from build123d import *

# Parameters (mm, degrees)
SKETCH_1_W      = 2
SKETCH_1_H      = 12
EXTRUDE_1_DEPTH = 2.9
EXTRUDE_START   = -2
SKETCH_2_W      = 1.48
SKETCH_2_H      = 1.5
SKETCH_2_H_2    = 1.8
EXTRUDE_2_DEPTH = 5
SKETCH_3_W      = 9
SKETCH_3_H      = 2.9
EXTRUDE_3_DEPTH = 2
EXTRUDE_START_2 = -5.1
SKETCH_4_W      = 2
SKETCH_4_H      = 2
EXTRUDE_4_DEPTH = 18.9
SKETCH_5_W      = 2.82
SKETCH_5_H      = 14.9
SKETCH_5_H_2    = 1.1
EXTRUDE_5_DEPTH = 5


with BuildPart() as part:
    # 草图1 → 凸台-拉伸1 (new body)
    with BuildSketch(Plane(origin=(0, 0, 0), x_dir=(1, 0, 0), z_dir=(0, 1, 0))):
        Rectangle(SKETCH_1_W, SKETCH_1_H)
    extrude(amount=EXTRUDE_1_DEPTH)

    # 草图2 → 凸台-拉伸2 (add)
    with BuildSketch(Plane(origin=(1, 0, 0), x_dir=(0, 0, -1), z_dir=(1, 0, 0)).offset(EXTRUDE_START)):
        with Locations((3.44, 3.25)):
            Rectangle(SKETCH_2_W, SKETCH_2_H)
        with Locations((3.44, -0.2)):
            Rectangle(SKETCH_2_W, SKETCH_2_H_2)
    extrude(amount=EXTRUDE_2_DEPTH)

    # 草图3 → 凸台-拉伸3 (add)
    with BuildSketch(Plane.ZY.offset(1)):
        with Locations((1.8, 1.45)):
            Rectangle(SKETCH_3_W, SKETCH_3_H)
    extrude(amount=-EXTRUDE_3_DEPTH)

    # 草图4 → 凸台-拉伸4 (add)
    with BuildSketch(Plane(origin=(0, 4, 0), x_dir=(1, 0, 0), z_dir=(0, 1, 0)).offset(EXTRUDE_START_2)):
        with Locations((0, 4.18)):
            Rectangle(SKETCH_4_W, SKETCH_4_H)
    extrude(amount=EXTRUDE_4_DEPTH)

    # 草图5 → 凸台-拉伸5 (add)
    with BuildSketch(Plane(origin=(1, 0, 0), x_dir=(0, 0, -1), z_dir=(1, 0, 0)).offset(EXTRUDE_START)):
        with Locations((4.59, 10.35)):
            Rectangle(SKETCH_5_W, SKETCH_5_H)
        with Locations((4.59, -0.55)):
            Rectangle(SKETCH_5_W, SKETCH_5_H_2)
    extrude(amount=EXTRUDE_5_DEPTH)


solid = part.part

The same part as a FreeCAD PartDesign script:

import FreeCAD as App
import Part
import Sketcher
from FreeCAD import Vector

doc = App.newDocument("Part")
body = doc.addObject("PartDesign::Body", "Body")

# Sketch on XZ plane
sketch1 = body.newObject("Sketcher::SketchObject", "Sketch")
sketch1.AttachmentSupport = (doc.getObject("XZ_Plane"), [""])
sketch1.MapMode = "FlatFace"
sketch1.addGeometry([
    Part.LineSegment(Vector(-1, -6, 0), Vector(-1, 6, 0)),
    Part.LineSegment(Vector(-1, 6, 0), Vector(1, 6, 0)),
    Part.LineSegment(Vector(1, 6, 0), Vector(1, -6, 0)),
    Part.LineSegment(Vector(1, -6, 0), Vector(-1, -6, 0)),
], False)
sketch1.addConstraint([
    Sketcher.Constraint("Coincident", 0, 2, 1, 1),
    Sketcher.Constraint("Coincident", 1, 2, 2, 1),
    Sketcher.Constraint("Coincident", 2, 2, 3, 1),
    Sketcher.Constraint("Coincident", 3, 2, 0, 1),
    Sketcher.Constraint("Vertical", 0),
    Sketcher.Constraint("Horizontal", 1),
    Sketcher.Constraint("Vertical", 2),
    Sketcher.Constraint("Horizontal", 3),
    Sketcher.Constraint("Symmetric", 0, 2, 2, 2, -1, 1),
    Sketcher.Constraint("DistanceX", 1, 1, 1, 2, 2.0),
    Sketcher.Constraint("DistanceY", 0, 1, 0, 2, 12.0),
])
pad1 = body.newObject("PartDesign::Pad", "Pad")
pad1.Profile = sketch1
pad1.Length = 2.9
pad1.Reversed = True

# Sketch on YZ plane
sketch2 = body.newObject("Sketcher::SketchObject", "Sketch001")
sketch2.AttachmentSupport = (doc.getObject("YZ_Plane"), [""])
sketch2.MapMode = "FlatFace"
sketch2.AttachmentOffset = App.Placement(Vector(0, 0, -1), App.Rotation())
sketch2.addGeometry([
    Part.LineSegment(Vector(4, -2.7, 0), Vector(2.5, -2.7, 0)),  # 0
    Part.LineSegment(Vector(2.5, -2.7, 0), Vector(2.5, -4.2, 0)),  # 1
    Part.LineSegment(Vector(2.5, -4.2, 0), Vector(4, -4.2, 0)),  # 2
    Part.LineSegment(Vector(4, -4.2, 0), Vector(4, -2.7, 0)),  # 3
    Part.LineSegment(Vector(0.7, -2.7, 0), Vector(-1.1, -2.7, 0)),  # 4
    Part.LineSegment(Vector(-1.1, -2.7, 0), Vector(-1.1, -4.2, 0)),  # 5
    Part.LineSegment(Vector(-1.1, -4.2, 0), Vector(0.7, -4.2, 0)),  # 6
    Part.LineSegment(Vector(0.7, -4.2, 0), Vector(0.7, -2.7, 0)),  # 7
], False)
sketch2.addConstraint([
    Sketcher.Constraint("Coincident", 0, 2, 1, 1),
    Sketcher.Constraint("Coincident", 1, 2, 2, 1),
    Sketcher.Constraint("Coincident", 2, 2, 3, 1),
    Sketcher.Constraint("Coincident", 3, 2, 0, 1),
    Sketcher.Constraint("Coincident", 4, 2, 5, 1),
    Sketcher.Constraint("Coincident", 5, 2, 6, 1),
    Sketcher.Constraint("Coincident", 6, 2, 7, 1),
    Sketcher.Constraint("Coincident", 7, 2, 4, 1),
    Sketcher.Constraint("Horizontal", 0),
    Sketcher.Constraint("Vertical", 1),
    Sketcher.Constraint("Horizontal", 2),
    Sketcher.Constraint("Vertical", 3),
    Sketcher.Constraint("Horizontal", 4),
    Sketcher.Constraint("Vertical", 5),
    Sketcher.Constraint("Horizontal", 6),
    Sketcher.Constraint("Vertical", 7),
    Sketcher.Constraint("Horizontal", 3, 2, 4, 2),
    Sketcher.Constraint("Horizontal", 2, 2, 5, 2),
    Sketcher.Constraint("DistanceX", 0, 2, 0, 1, 1.5),
    Sketcher.Constraint("DistanceX", 4, 2, 4, 1, 1.8),
    Sketcher.Constraint("DistanceX", -1, 1, 2, 2, 4.0),
    Sketcher.Constraint("DistanceY", 1, 2, 1, 1, 1.48),
    Sketcher.Constraint("DistanceY", 0, 2, -1, 1, 2.7),
    Sketcher.Constraint("DistanceX", 4, 2, -1, 1, 1.1),
])
pad2 = body.newObject("PartDesign::Pad", "Pad001")
pad2.Profile = sketch2
pad2.Length = 5

# Sketch on YZ plane
sketch3 = body.newObject("Sketcher::SketchObject", "Sketch002")
sketch3.AttachmentSupport = (doc.getObject("YZ_Plane"), [""])
sketch3.MapMode = "FlatFace"
sketch3.AttachmentOffset = App.Placement(Vector(0, 0, -1), App.Rotation())
sketch3.addGeometry([
    Part.LineSegment(Vector(2.9, -2.7, 0), Vector(0, -2.7, 0)),
    Part.LineSegment(Vector(0, -2.7, 0), Vector(0, 6.3, 0)),
    Part.LineSegment(Vector(0, 6.3, 0), Vector(2.9, 6.3, 0)),
    Part.LineSegment(Vector(2.9, 6.3, 0), Vector(2.9, -2.7, 0)),
], False)
sketch3.addConstraint([
    Sketcher.Constraint("Coincident", 0, 2, 1, 1),
    Sketcher.Constraint("Coincident", 1, 2, 2, 1),
    Sketcher.Constraint("Coincident", 2, 2, 3, 1),
    Sketcher.Constraint("Coincident", 3, 2, 0, 1),
    Sketcher.Constraint("Horizontal", 0),
    Sketcher.Constraint("Vertical", 1),
    Sketcher.Constraint("Horizontal", 2),
    Sketcher.Constraint("Vertical", 3),
    Sketcher.Constraint("PointOnObject", 0, 2, -2),
    Sketcher.Constraint("DistanceY", 1, 1, 1, 2, 9.0),
    Sketcher.Constraint("DistanceX", 0, 2, 0, 1, 2.9),
    Sketcher.Constraint("DistanceY", 0, 2, -1, 1, 2.7),
])
pad3 = body.newObject("PartDesign::Pad", "Pad002")
pad3.Profile = sketch3
pad3.Length = 2

# Sketch on XZ plane
sketch4 = body.newObject("Sketcher::SketchObject", "Sketch003")
sketch4.AttachmentSupport = (doc.getObject("XZ_Plane"), [""])
sketch4.MapMode = "FlatFace"
sketch4.AttachmentOffset = App.Placement(Vector(0, 0, 1.1), App.Rotation())
sketch4.addGeometry([
    Part.LineSegment(Vector(-1, -5.2, 0), Vector(-1, -3.2, 0)),
    Part.LineSegment(Vector(-1, -3.2, 0), Vector(1, -3.2, 0)),
    Part.LineSegment(Vector(1, -3.2, 0), Vector(1, -5.2, 0)),
    Part.LineSegment(Vector(1, -5.2, 0), Vector(-1, -5.2, 0)),
], False)
sketch4.addConstraint([
    Sketcher.Constraint("Coincident", 0, 2, 1, 1),
    Sketcher.Constraint("Coincident", 1, 2, 2, 1),
    Sketcher.Constraint("Coincident", 2, 2, 3, 1),
    Sketcher.Constraint("Coincident", 3, 2, 0, 1),
    Sketcher.Constraint("Vertical", 0),
    Sketcher.Constraint("Horizontal", 1),
    Sketcher.Constraint("Vertical", 2),
    Sketcher.Constraint("Horizontal", 3),
    Sketcher.Constraint("Equal", 3, 0),
    Sketcher.Constraint("DistanceX", 1, 1, 1, 2, 2.0),
    Sketcher.Constraint("DistanceX", 0, 2, -1, 1, 1.0),
    Sketcher.Constraint("DistanceY", 0, 2, -1, 1, 3.18),
])
pad4 = body.newObject("PartDesign::Pad", "Pad003")
pad4.Profile = sketch4
pad4.Length = 18.9
pad4.Reversed = True

# Sketch on YZ plane
sketch5 = body.newObject("Sketcher::SketchObject", "Sketch004")
sketch5.AttachmentSupport = (doc.getObject("YZ_Plane"), [""])
sketch5.MapMode = "FlatFace"
sketch5.AttachmentOffset = App.Placement(Vector(0, 0, -1), App.Rotation())
sketch5.addGeometry([
    Part.LineSegment(Vector(17.8, -3.2, 0), Vector(2.9, -3.2, 0)),  # 0
    Part.LineSegment(Vector(2.9, -3.2, 0), Vector(2.9, -6, 0)),  # 1
    Part.LineSegment(Vector(2.9, -6, 0), Vector(17.8, -6, 0)),  # 2
    Part.LineSegment(Vector(17.8, -6, 0), Vector(17.8, -3.2, 0)),  # 3
    Part.LineSegment(Vector(0, -3.2, 0), Vector(-1.1, -3.2, 0)),  # 4
    Part.LineSegment(Vector(-1.1, -3.2, 0), Vector(-1.1, -6, 0)),  # 5
    Part.LineSegment(Vector(-1.1, -6, 0), Vector(0, -6, 0)),  # 6
    Part.LineSegment(Vector(0, -6, 0), Vector(0, -3.2, 0)),  # 7
], False)
sketch5.addConstraint([
    Sketcher.Constraint("Coincident", 0, 2, 1, 1),
    Sketcher.Constraint("Coincident", 1, 2, 2, 1),
    Sketcher.Constraint("Coincident", 2, 2, 3, 1),
    Sketcher.Constraint("Coincident", 3, 2, 0, 1),
    Sketcher.Constraint("Coincident", 4, 2, 5, 1),
    Sketcher.Constraint("Coincident", 5, 2, 6, 1),
    Sketcher.Constraint("Coincident", 6, 2, 7, 1),
    Sketcher.Constraint("Coincident", 7, 2, 4, 1),
    Sketcher.Constraint("Horizontal", 0),
    Sketcher.Constraint("Vertical", 1),
    Sketcher.Constraint("Horizontal", 2),
    Sketcher.Constraint("Vertical", 3),
    Sketcher.Constraint("Horizontal", 4),
    Sketcher.Constraint("Vertical", 5),
    Sketcher.Constraint("Horizontal", 6),
    Sketcher.Constraint("Vertical", 7),
    Sketcher.Constraint("PointOnObject", 6, 2, -2),
    Sketcher.Constraint("Horizontal", 3, 2, 4, 2),
    Sketcher.Constraint("Horizontal", 2, 2, 5, 2),
    Sketcher.Constraint("DistanceX", 0, 2, 0, 1, 14.9),
    Sketcher.Constraint("DistanceX", 4, 2, 4, 1, 1.1),
    Sketcher.Constraint("DistanceY", 1, 2, -1, 1, 6.0),
    Sketcher.Constraint("DistanceX", 4, 2, 0, 2, 4.0),
    Sketcher.Constraint("DistanceY", 1, 2, 1, 1, 2.82),
])
pad5 = body.newObject("PartDesign::Pad", "Pad004")
pad5.Profile = sketch5
pad5.Length = 5

doc.recompute()
